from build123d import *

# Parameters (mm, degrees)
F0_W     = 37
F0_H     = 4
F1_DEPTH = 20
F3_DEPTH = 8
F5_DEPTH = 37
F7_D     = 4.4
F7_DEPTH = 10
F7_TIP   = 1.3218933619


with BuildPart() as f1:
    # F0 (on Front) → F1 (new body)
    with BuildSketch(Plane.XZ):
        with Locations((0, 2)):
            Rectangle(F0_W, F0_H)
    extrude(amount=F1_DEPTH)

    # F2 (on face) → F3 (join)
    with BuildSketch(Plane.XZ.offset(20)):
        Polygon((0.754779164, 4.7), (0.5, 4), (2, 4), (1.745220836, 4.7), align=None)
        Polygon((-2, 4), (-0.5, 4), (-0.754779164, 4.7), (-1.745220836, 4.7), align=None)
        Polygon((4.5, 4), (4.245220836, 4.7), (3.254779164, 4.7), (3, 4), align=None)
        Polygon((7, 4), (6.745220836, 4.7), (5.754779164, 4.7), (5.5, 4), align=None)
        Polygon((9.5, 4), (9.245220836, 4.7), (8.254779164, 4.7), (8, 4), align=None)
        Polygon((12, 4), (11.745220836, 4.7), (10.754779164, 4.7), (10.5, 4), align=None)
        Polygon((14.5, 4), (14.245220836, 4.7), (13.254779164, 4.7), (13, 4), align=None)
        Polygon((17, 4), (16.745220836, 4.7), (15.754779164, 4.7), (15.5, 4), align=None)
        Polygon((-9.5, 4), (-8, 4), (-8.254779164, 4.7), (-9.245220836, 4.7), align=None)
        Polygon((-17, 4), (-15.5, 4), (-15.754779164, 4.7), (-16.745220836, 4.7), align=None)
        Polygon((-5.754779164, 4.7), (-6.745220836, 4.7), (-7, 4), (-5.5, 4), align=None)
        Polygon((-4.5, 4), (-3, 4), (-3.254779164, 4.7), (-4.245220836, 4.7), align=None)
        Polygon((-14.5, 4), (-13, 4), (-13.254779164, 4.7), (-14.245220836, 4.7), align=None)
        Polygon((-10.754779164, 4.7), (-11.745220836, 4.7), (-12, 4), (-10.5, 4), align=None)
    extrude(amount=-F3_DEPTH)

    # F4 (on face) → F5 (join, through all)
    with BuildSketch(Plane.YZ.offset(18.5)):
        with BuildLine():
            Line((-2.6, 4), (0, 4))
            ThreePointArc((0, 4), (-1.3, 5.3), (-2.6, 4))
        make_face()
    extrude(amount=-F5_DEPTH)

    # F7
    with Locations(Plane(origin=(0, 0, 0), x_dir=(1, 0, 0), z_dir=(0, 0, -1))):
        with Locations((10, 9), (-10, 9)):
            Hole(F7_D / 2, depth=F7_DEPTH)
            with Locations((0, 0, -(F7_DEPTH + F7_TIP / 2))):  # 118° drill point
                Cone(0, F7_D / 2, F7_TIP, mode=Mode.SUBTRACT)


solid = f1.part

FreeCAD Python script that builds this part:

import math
import FreeCAD as App
import Part
import Sketcher
Q = App.Units.Quantity

doc = App.newDocument("Part")
body = doc.addObject("PartDesign::Body", "Body")

# Sketch on XZ plane
sketch1 = body.newObject("Sketcher::SketchObject", "Sketch")
sketch1.AttachmentSupport = (doc.getObject("XZ_Plane"), [""])
sketch1.MapMode = "FlatFace"
sketch1.addGeometry([
    Part.LineSegment(App.Vector(-18.5, 4, 0), App.Vector(-18.5, 0, 0)),
    Part.LineSegment(App.Vector(-18.5, 0, 0), App.Vector(18.5, 0, 0)),
    Part.LineSegment(App.Vector(18.5, 0, 0), App.Vector(18.5, 4, 0)),
    Part.LineSegment(App.Vector(18.5, 4, 0), App.Vector(-18.5, 4, 0)),
], False)
sketch1.addConstraint([
    Sketcher.Constraint("Coincident", 0, 2, 1, 1),
    Sketcher.Constraint("Coincident", 1, 2, 2, 1),
    Sketcher.Constraint("Coincident", 2, 2, 3, 1),
    Sketcher.Constraint("Coincident", 3, 2, 0, 1),
    Sketcher.Constraint("Vertical", 0),
    Sketcher.Constraint("Horizontal", 1),
    Sketcher.Constraint("Vertical", 2),
    Sketcher.Constraint("Horizontal", 3),
    Sketcher.Constraint("Symmetric", 0, 2, 1, 2, -1, 1),
    Sketcher.Constraint("DistanceX", 1, 1, 1, 2, 37.0),
    Sketcher.Constraint("DistanceY", 0, 2, 0, 1, 4.0),
])
pad1 = body.newObject("PartDesign::Pad", "Pad")
pad1.Profile = sketch1
pad1.Length = 20

# Sketch on XZ plane
sketch2 = body.newObject("Sketcher::SketchObject", "Sketch001")
sketch2.AttachmentSupport = (doc.getObject("XZ_Plane"), [""])
sketch2.MapMode = "FlatFace"
sketch2.AttachmentOffset = App.Placement(App.Vector(0, 0, 20), App.Rotation())
sketch2.addGeometry([
    Part.LineSegment(App.Vector(0.754779, 4.7, 0), App.Vector(0.5, 4, 0)),  # 0
    Part.LineSegment(App.Vector(0.5, 4, 0), App.Vector(2, 4, 0)),  # 1
    Part.LineSegment(App.Vector(2, 4, 0), App.Vector(1.745221, 4.7, 0)),  # 2
    Part.LineSegment(App.Vector(1.745221, 4.7, 0), App.Vector(0.754779, 4.7, 0)),  # 3
    Part.LineSegment(App.Vector(-2, 4, 0), App.Vector(-0.5, 4, 0)),  # 4
    Part.LineSegment(App.Vector(-0.5, 4, 0), App.Vector(-0.754779, 4.7, 0)),  # 5
    Part.LineSegment(App.Vector(-0.754779, 4.7, 0), App.Vector(-1.745221, 4.7, 0)),  # 6
    Part.LineSegment(App.Vector(-1.745221, 4.7, 0), App.Vector(-2, 4, 0)),  # 7
    Part.LineSegment(App.Vector(4.5, 4, 0), App.Vector(4.245221, 4.7, 0)),  # 8
    Part.LineSegment(App.Vector(4.245221, 4.7, 0), App.Vector(3.254779, 4.7, 0)),  # 9
    Part.LineSegment(App.Vector(3.254779, 4.7, 0), App.Vector(3, 4, 0)),  # 10
    Part.LineSegment(App.Vector(3, 4, 0), App.Vector(4.5, 4, 0)),  # 11
    Part.LineSegment(App.Vector(7, 4, 0), App.Vector(6.745221, 4.7, 0)),  # 12
    Part.LineSegment(App.Vector(6.745221, 4.7, 0), App.Vector(5.754779, 4.7, 0)),  # 13
    Part.LineSegment(App.Vector(5.754779, 4.7, 0), App.Vector(5.5, 4, 0)),  # 14
    Part.LineSegment(App.Vector(5.5, 4, 0), App.Vector(7, 4, 0)),  # 15
    Part.LineSegment(App.Vector(9.5, 4, 0), App.Vector(9.245221, 4.7, 0)),  # 16
    Part.LineSegment(App.Vector(9.245221, 4.7, 0), App.Vector(8.254779, 4.7, 0)),  # 17
    Part.LineSegment(App.Vector(8.254779, 4.7, 0), App.Vector(8, 4, 0)),  # 18
    Part.LineSegment(App.Vector(8, 4, 0), App.Vector(9.5, 4, 0)),  # 19
    Part.LineSegment(App.Vector(12, 4, 0), App.Vector(11.745221, 4.7, 0)),  # 20
    Part.LineSegment(App.Vector(11.745221, 4.7, 0), App.Vector(10.754779, 4.7, 0)),  # 21
    Part.LineSegment(App.Vector(10.754779, 4.7, 0), App.Vector(10.5, 4, 0)),  # 22
    Part.LineSegment(App.Vector(10.5, 4, 0), App.Vector(12, 4, 0)),  # 23
    Part.LineSegment(App.Vector(14.5, 4, 0), App.Vector(14.245221, 4.7, 0)),  # 24
    Part.LineSegment(App.Vector(14.245221, 4.7, 0), App.Vector(13.254779, 4.7, 0)),  # 25
    Part.LineSegment(App.Vector(13.254779, 4.7, 0), App.Vector(13, 4, 0)),  # 26
    Part.LineSegment(App.Vector(13, 4, 0), App.Vector(14.5, 4, 0)),  # 27
    Part.LineSegment(App.Vector(17, 4, 0), App.Vector(16.745221, 4.7, 0)),  # 28
    Part.LineSegment(App.Vector(16.745221, 4.7, 0), App.Vector(15.754779, 4.7, 0)),  # 29
    Part.LineSegment(App.Vector(15.754779, 4.7, 0), App.Vector(15.5, 4, 0)),  # 30
    Part.LineSegment(App.Vector(15.5, 4, 0), App.Vector(17, 4, 0)),  # 31
    Part.LineSegment(App.Vector(-9.5, 4, 0), App.Vector(-8, 4, 0)),  # 32
    Part.LineSegment(App.Vector(-8, 4, 0), App.Vector(-8.254779, 4.7, 0)),  # 33
    Part.LineSegment(App.Vector(-8.254779, 4.7, 0), App.Vector(-9.245221, 4.7, 0)),  # 34
    Part.LineSegment(App.Vector(-9.245221, 4.7, 0), App.Vector(-9.5, 4, 0)),  # 35
    Part.LineSegment(App.Vector(-17, 4, 0), App.Vector(-15.5, 4, 0)),  # 36
    Part.LineSegment(App.Vector(-15.5, 4, 0), App.Vector(-15.754779, 4.7, 0)),  # 37
    Part.LineSegment(App.Vector(-15.754779, 4.7, 0), App.Vector(-16.745221, 4.7, 0)),  # 38
    Part.LineSegment(App.Vector(-16.745221, 4.7, 0), App.Vector(-17, 4, 0)),  # 39
    Part.LineSegment(App.Vector(-5.754779, 4.7, 0), App.Vector(-6.745221, 4.7, 0)),  # 40
    Part.LineSegment(App.Vector(-6.745221, 4.7, 0), App.Vector(-7, 4, 0)),  # 41
    Part.LineSegment(App.Vector(-7, 4, 0), App.Vector(-5.5, 4, 0)),  # 42
    Part.LineSegment(App.Vector(-5.5, 4, 0), App.Vector(-5.754779, 4.7, 0)),  # 43
    Part.LineSegment(App.Vector(-4.5, 4, 0), App.Vector(-3, 4, 0)),  # 44
    Part.LineSegment(App.Vector(-3, 4, 0), App.Vector(-3.254779, 4.7, 0)),  # 45
    Part.LineSegment(App.Vector(-3.254779, 4.7, 0), App.Vector(-4.245221, 4.7, 0)),  # 46
    Part.LineSegment(App.Vector(-4.245221, 4.7, 0), App.Vector(-4.5, 4, 0)),  # 47
    Part.LineSegment(App.Vector(-14.5, 4, 0), App.Vector(-13, 4, 0)),  # 48
    Part.LineSegment(App.Vector(-13, 4, 0), App.Vector(-13.254779, 4.7, 0)),  # 49
    Part.LineSegment(App.Vector(-13.254779, 4.7, 0), App.Vector(-14.245221, 4.7, 0)),  # 50
    Part.LineSegment(App.Vector(-14.245221, 4.7, 0), App.Vector(-14.5, 4, 0)),  # 51
    Part.LineSegment(App.Vector(-10.754779, 4.7, 0), App.Vector(-11.745221, 4.7, 0)),  # 52
    Part.LineSegment(App.Vector(-11.745221, 4.7, 0), App.Vector(-12, 4, 0)),  # 53
    Part.LineSegment(App.Vector(-12, 4, 0), App.Vector(-10.5, 4, 0)),  # 54
    Part.LineSegment(App.Vector(-10.5, 4, 0), App.Vector(-10.754779, 4.7, 0)),  # 55
], False)
sketch2.addConstraint([
    Sketcher.Constraint("Coincident", 0, 2, 1, 1),
    Sketcher.Constraint("Coincident", 1, 2, 2, 1),
    Sketcher.Constraint("Coincident", 2, 2, 3, 1),
    Sketcher.Constraint("Coincident", 3, 2, 0, 1),
    Sketcher.Constraint("Coincident", 4, 2, 5, 1),
    Sketcher.Constraint("Coincident", 5, 2, 6, 1),
    Sketcher.Constraint("Coincident", 6, 2, 7, 1),
    Sketcher.Constraint("Coincident", 7, 2, 4, 1),
    Sketcher.Constraint("Coincident", 8, 2, 9, 1),
    Sketcher.Constraint("Coincident", 9, 2, 10, 1),
    Sketcher.Constraint("Coincident", 10, 2, 11, 1),
    Sketcher.Constraint("Coincident", 11, 2, 8, 1),
    Sketcher.Constraint("Coincident", 12, 2, 13, 1),
    Sketcher.Constraint("Coincident", 13, 2, 14, 1),
    Sketcher.Constraint("Coincident", 14, 2, 15, 1),
    Sketcher.Constraint("Coincident", 15, 2, 12, 1),
    Sketcher.Constraint("Coincident", 16, 2, 17, 1),
    Sketcher.Constraint("Coincident", 17, 2, 18, 1),
    Sketcher.Constraint("Coincident", 18, 2, 19, 1),
    Sketcher.Constraint("Coincident", 19, 2, 16, 1),
    Sketcher.Constraint("Coincident", 20, 2, 21, 1),
    Sketcher.Constraint("Coincident", 21, 2, 22, 1),
    Sketcher.Constraint("Coincident", 22, 2, 23, 1),
    Sketcher.Constraint("Coincident", 23, 2, 20, 1),
    Sketcher.Constraint("Coincident", 24, 2, 25, 1),
    Sketcher.Constraint("Coincident", 25, 2, 26, 1),
    Sketcher.Constraint("Coincident", 26, 2, 27, 1),
    Sketcher.Constraint("Coincident", 27, 2, 24, 1),
    Sketcher.Constraint("Coincident", 28, 2, 29, 1),
    Sketcher.Constraint("Coincident", 29, 2, 30, 1),
    Sketcher.Constraint("Coincident", 30, 2, 31, 1),
    Sketcher.Constraint("Coincident", 31, 2, 28, 1),
    Sketcher.Constraint("Coincident", 32, 2, 33, 1),
    Sketcher.Constraint("Coincident", 33, 2, 34, 1),
    Sketcher.Constraint("Coincident", 34, 2, 35, 1),
    Sketcher.Constraint("Coincident", 35, 2, 32, 1),
    Sketcher.Constraint("Coincident", 36, 2, 37, 1),
    Sketcher.Constraint("Coincident", 37, 2, 38, 1),
    Sketcher.Constraint("Coincident", 38, 2, 39, 1),
    Sketcher.Constraint("Coincident", 39, 2, 36, 1),
    Sketcher.Constraint("Coincident", 40, 2, 41, 1),
    Sketcher.Constraint("Coincident", 41, 2, 42, 1),
    Sketcher.Constraint("Coincident", 42, 2, 43, 1),
    Sketcher.Constraint("Coincident", 43, 2, 40, 1),
    Sketcher.Constraint("Coincident", 44, 2, 45, 1),
    Sketcher.Constraint("Coincident", 45, 2, 46, 1),
    Sketcher.Constraint("Coincident", 46, 2, 47, 1),
    Sketcher.Constraint("Coincident", 47, 2, 44, 1),
    Sketcher.Constraint("Coincident", 48, 2, 49, 1),
    Sketcher.Constraint("Coincident", 49, 2, 50, 1),
    Sketcher.Constraint("Coincident", 50, 2, 51, 1),
    Sketcher.Constraint("Coincident", 51, 2, 48, 1),
    Sketcher.Constraint("Coincident", 52, 2, 53, 1),
    Sketcher.Constraint("Coincident", 53, 2, 54, 1),
    Sketcher.Constraint("Coincident", 54, 2, 55, 1),
    Sketcher.Constraint("Coincident", 55, 2, 52, 1),
    Sketcher.Constraint("Horizontal", 1),
    Sketcher.Constraint("Horizontal", 3),
    Sketcher.Constraint("Horizontal", 4),
    Sketcher.Constraint("Horizontal", 6),
    Sketcher.Constraint("Horizontal", 9),
    Sketcher.Constraint("Horizontal", 11),
    Sketcher.Constraint("Horizontal", 13),
    Sketcher.Constraint("Horizontal", 15),
    Sketcher.Constraint("Horizontal", 17),
    Sketcher.Constraint("Horizontal", 19),
    Sketcher.Constraint("Horizontal", 21),
    Sketcher.Constraint("Horizontal", 23),
    Sketcher.Constraint("Horizontal", 25),
    Sketcher.Constraint("Horizontal", 27),
    Sketcher.Constraint("Horizontal", 29),
    Sketcher.Constraint("Horizontal", 31),
    Sketcher.Constraint("Horizontal", 32),
    Sketcher.Constraint("Horizontal", 34),
    Sketcher.Constraint("Horizontal", 36),
    Sketcher.Constraint("Horizontal", 38),
    Sketcher.Constraint("Horizontal", 40),
    Sketcher.Constraint("Horizontal", 42),
    Sketcher.Constraint("Horizontal", 44),
    Sketcher.Constraint("Horizontal", 46),
    Sketcher.Constraint("Horizontal", 48),
    Sketcher.Constraint("Horizontal", 50),
    Sketcher.Constraint("Horizontal", 52),
    Sketcher.Constraint("Horizontal", 54),
    Sketcher.Constraint("Symmetric", 0, 2, 4, 2, -2),
    Sketcher.Constraint("Symmetric", 3, 2, 5, 2, -2),
    Sketcher.Constraint("Symmetric", 18, 2, 32, 2, -2),
    Sketcher.Constraint("Symmetric", 17, 2, 33, 2, -2),
    Sketcher.Constraint("Symmetric", 30, 2, 36, 2, -2),
    Sketcher.Constraint("Symmetric", 29, 2, 37, 2, -2),
    Sketcher.Constraint("Symmetric", 12, 2, 40, 2, -2),
    Sketcher.Constraint("Symmetric", 15, 2, 41, 2, -2),
    Sketcher.Constraint("Symmetric", 10, 2, 44, 2, -2),
    Sketcher.Constraint("Symmetric", 9, 2, 45, 2, -2),
    Sketcher.Constraint("Symmetric", 26, 2, 48, 2, -2),
    Sketcher.Constraint("Symmetric", 25, 2, 49, 2, -2),
    Sketcher.Constraint("Symmetric", 20, 2, 52, 2, -2),
    Sketcher.Constraint("Symmetric", 23, 2, 53, 2, -2),
    Sketcher.Constraint("Parallel", 2, 5),
    Sketcher.Constraint("Parallel", 0, 7),
    Sketcher.Constraint("Parallel", 5, 8),
    Sketcher.Constraint("Parallel", 7, 10),
    Sketcher.Constraint("Parallel", 8, 12),
    Sketcher.Constraint("Parallel", 10, 14),
    Sketcher.Constraint("Parallel", 12, 16),
    Sketcher.Constraint("Parallel", 14, 18),
    Sketcher.Constraint("Parallel", 16, 20),
    Sketcher.Constraint("Parallel", 18, 22),
    Sketcher.Constraint("Parallel", 20, 24),
    Sketcher.Constraint("Parallel", 22, 26),
    Sketcher.Constraint("Parallel", 24, 28),
    Sketcher.Constraint("Parallel", 26, 30),
    Sketcher.Constraint("Parallel", 30, 35),
    Sketcher.Constraint("Parallel", 35, 39),
    Sketcher.Constraint("Parallel", 37, 43),
    Sketcher.Constraint("Parallel", 41, 47),
    Sketcher.Constraint("Parallel", 47, 51),
    Sketcher.Constraint("Parallel", 49, 55),
    Sketcher.Constraint("Horizontal", 6, 2, 8, 2),
    Sketcher.Constraint("Horizontal", 7, 2, 10, 2),
    Sketcher.Constraint("Horizontal", 9, 2, 12, 2),
    Sketcher.Constraint("Horizontal", 11, 2, 14, 2),
    Sketcher.Constraint("Horizontal", 13, 2, 16, 2),
    Sketcher.Constraint("Horizontal", 15, 2, 18, 2),
    Sketcher.Constraint("Horizontal", 17, 2, 20, 2),
    Sketcher.Constraint("Horizontal", 19, 2, 22, 2),
    Sketcher.Constraint("Horizontal", 21, 2, 24, 2),
    Sketcher.Constraint("Horizontal", 23, 2, 26, 2),
    Sketcher.Constraint("Horizontal", 25, 2, 28, 2),
    Sketcher.Constraint("Horizontal", 27, 2, 30, 2),
    Sketcher.Constraint("Equal", 1, 4),
    Sketcher.Constraint("Equal", 6, 9),
    Sketcher.Constraint("Equal", 9, 13),
    Sketcher.Constraint("Equal", 13, 17),
    Sketcher.Constraint("Equal", 17, 21),
    Sketcher.Constraint("Equal", 21, 25),
    Sketcher.Constraint("Equal", 25, 29),
    Sketcher.Constraint("Equal", 31, 32),
    Sketcher.Constraint("Equal", 32, 36),
    Sketcher.Constraint("Equal", 38, 40),
    Sketcher.Constraint("Equal", 42, 44),
    Sketcher.Constraint("Equal", 44, 48),
    Sketcher.Constraint("Equal", 50, 52),
    Sketcher.Constraint("Angle", 0, Q("-110 deg")),
    Sketcher.Constraint("DistanceX", 1, 1, 1, 2, 1.5),
    Sketcher.Constraint("DistanceY", -1, 1, 0, 2, 4.0),
    Sketcher.Constraint("DistanceX", -1, 1, 1, 2, 2.0),
    Sketcher.Constraint("DistanceX", -1, 1, 10, 2, 3.0),
    Sketcher.Constraint("DistanceX", -1, 1, 15, 2, 7.0),
    Sketcher.Constraint("DistanceX", -1, 1, 18, 2, 8.0),
    Sketcher.Constraint("DistanceX", -1, 1, 23, 2, 12.0),
    Sketcher.Constraint("DistanceX", -1, 1, 26, 2, 13.0),
    Sketcher.Constraint("DistanceX", -1, 1, 31, 2, 17.0),
    Sketcher.Constraint("DistanceY", -1, 1, 2, 2, 4.7),
])
pad2 = body.newObject("PartDesign::Pad", "Pad001")
pad2.Profile = sketch2
pad2.Length = 8
pad2.Reversed = True

# Sketch on YZ plane
sketch3 = body.newObject("Sketcher::SketchObject", "Sketch002")
sketch3.AttachmentSupport = (doc.getObject("YZ_Plane"), [""])
sketch3.MapMode = "FlatFace"
sketch3.AttachmentOffset = App.Placement(App.Vector(0, 0, 18.5), App.Rotation())
sketch3.addGeometry([
    Part.LineSegment(App.Vector(-2.6, 4, 0), App.Vector(0, 4, 0)),
    Part.ArcOfCircle(Part.Circle(App.Vector(-1.3, 4, 0), App.Vector(0, 0, 1), 1.3), math.radians(0), math.radians(180)),
], False)
sketch3.addConstraint([
    Sketcher.Constraint("Coincident", 0, 1, 1, 2),
    Sketcher.Constraint("Coincident", 1, 1, 0, 2),
    Sketcher.Constraint("Horizontal", 0),
    Sketcher.Constraint("PointOnObject", 1, 1, -2),
    Sketcher.Constraint("Horizontal", 1, 3, 0, 1),
    Sketcher.Constraint("Radius", 1, 1.3),
    Sketcher.Constraint("DistanceY", -1, 1, 1, 3, 4.0),
])
pad3 = body.newObject("PartDesign::Pad", "Pad002")
pad3.Profile = sketch3
pad3.Length = 37
pad3.Reversed = True

# Sketch on XY plane
sketch4 = body.newObject("Sketcher::SketchObject", "Sketch003")
sketch4.AttachmentSupport = (doc.getObject("XY_Plane"), [""])
sketch4.MapMode = "FlatFace"
sketch4.addGeometry([
    Part.Circle(App.Vector(10, -9, 0), App.Vector(0, 0, 1), 2.2),
    Part.Circle(App.Vector(-10, -9, 0), App.Vector(0, 0, 1), 2.2),
], False)
sketch4.addConstraint([
    Sketcher.Constraint("Equal", 0, 1),
    Sketcher.Constraint("Symmetric", 0, 3, 1, 3, -2),
    Sketcher.Constraint("Diameter", 0, 4.4),
    Sketcher.Constraint("DistanceX", -1, 1, 0, 3, 10.0),
    Sketcher.Constraint("DistanceY", 0, 3, -1, 1, 9.0),
])
doc.recompute()
hole = body.newObject("PartDesign::Hole", "Hole")
hole.Profile = sketch4
hole.ThreadType = "None"
hole.Diameter = 4.4
hole.DepthType = "Dimension"
hole.Depth = 10
hole.DrillPoint = "Angled"
hole.DrillPointAngle = 118
hole.Reversed = True

doc.recompute()
